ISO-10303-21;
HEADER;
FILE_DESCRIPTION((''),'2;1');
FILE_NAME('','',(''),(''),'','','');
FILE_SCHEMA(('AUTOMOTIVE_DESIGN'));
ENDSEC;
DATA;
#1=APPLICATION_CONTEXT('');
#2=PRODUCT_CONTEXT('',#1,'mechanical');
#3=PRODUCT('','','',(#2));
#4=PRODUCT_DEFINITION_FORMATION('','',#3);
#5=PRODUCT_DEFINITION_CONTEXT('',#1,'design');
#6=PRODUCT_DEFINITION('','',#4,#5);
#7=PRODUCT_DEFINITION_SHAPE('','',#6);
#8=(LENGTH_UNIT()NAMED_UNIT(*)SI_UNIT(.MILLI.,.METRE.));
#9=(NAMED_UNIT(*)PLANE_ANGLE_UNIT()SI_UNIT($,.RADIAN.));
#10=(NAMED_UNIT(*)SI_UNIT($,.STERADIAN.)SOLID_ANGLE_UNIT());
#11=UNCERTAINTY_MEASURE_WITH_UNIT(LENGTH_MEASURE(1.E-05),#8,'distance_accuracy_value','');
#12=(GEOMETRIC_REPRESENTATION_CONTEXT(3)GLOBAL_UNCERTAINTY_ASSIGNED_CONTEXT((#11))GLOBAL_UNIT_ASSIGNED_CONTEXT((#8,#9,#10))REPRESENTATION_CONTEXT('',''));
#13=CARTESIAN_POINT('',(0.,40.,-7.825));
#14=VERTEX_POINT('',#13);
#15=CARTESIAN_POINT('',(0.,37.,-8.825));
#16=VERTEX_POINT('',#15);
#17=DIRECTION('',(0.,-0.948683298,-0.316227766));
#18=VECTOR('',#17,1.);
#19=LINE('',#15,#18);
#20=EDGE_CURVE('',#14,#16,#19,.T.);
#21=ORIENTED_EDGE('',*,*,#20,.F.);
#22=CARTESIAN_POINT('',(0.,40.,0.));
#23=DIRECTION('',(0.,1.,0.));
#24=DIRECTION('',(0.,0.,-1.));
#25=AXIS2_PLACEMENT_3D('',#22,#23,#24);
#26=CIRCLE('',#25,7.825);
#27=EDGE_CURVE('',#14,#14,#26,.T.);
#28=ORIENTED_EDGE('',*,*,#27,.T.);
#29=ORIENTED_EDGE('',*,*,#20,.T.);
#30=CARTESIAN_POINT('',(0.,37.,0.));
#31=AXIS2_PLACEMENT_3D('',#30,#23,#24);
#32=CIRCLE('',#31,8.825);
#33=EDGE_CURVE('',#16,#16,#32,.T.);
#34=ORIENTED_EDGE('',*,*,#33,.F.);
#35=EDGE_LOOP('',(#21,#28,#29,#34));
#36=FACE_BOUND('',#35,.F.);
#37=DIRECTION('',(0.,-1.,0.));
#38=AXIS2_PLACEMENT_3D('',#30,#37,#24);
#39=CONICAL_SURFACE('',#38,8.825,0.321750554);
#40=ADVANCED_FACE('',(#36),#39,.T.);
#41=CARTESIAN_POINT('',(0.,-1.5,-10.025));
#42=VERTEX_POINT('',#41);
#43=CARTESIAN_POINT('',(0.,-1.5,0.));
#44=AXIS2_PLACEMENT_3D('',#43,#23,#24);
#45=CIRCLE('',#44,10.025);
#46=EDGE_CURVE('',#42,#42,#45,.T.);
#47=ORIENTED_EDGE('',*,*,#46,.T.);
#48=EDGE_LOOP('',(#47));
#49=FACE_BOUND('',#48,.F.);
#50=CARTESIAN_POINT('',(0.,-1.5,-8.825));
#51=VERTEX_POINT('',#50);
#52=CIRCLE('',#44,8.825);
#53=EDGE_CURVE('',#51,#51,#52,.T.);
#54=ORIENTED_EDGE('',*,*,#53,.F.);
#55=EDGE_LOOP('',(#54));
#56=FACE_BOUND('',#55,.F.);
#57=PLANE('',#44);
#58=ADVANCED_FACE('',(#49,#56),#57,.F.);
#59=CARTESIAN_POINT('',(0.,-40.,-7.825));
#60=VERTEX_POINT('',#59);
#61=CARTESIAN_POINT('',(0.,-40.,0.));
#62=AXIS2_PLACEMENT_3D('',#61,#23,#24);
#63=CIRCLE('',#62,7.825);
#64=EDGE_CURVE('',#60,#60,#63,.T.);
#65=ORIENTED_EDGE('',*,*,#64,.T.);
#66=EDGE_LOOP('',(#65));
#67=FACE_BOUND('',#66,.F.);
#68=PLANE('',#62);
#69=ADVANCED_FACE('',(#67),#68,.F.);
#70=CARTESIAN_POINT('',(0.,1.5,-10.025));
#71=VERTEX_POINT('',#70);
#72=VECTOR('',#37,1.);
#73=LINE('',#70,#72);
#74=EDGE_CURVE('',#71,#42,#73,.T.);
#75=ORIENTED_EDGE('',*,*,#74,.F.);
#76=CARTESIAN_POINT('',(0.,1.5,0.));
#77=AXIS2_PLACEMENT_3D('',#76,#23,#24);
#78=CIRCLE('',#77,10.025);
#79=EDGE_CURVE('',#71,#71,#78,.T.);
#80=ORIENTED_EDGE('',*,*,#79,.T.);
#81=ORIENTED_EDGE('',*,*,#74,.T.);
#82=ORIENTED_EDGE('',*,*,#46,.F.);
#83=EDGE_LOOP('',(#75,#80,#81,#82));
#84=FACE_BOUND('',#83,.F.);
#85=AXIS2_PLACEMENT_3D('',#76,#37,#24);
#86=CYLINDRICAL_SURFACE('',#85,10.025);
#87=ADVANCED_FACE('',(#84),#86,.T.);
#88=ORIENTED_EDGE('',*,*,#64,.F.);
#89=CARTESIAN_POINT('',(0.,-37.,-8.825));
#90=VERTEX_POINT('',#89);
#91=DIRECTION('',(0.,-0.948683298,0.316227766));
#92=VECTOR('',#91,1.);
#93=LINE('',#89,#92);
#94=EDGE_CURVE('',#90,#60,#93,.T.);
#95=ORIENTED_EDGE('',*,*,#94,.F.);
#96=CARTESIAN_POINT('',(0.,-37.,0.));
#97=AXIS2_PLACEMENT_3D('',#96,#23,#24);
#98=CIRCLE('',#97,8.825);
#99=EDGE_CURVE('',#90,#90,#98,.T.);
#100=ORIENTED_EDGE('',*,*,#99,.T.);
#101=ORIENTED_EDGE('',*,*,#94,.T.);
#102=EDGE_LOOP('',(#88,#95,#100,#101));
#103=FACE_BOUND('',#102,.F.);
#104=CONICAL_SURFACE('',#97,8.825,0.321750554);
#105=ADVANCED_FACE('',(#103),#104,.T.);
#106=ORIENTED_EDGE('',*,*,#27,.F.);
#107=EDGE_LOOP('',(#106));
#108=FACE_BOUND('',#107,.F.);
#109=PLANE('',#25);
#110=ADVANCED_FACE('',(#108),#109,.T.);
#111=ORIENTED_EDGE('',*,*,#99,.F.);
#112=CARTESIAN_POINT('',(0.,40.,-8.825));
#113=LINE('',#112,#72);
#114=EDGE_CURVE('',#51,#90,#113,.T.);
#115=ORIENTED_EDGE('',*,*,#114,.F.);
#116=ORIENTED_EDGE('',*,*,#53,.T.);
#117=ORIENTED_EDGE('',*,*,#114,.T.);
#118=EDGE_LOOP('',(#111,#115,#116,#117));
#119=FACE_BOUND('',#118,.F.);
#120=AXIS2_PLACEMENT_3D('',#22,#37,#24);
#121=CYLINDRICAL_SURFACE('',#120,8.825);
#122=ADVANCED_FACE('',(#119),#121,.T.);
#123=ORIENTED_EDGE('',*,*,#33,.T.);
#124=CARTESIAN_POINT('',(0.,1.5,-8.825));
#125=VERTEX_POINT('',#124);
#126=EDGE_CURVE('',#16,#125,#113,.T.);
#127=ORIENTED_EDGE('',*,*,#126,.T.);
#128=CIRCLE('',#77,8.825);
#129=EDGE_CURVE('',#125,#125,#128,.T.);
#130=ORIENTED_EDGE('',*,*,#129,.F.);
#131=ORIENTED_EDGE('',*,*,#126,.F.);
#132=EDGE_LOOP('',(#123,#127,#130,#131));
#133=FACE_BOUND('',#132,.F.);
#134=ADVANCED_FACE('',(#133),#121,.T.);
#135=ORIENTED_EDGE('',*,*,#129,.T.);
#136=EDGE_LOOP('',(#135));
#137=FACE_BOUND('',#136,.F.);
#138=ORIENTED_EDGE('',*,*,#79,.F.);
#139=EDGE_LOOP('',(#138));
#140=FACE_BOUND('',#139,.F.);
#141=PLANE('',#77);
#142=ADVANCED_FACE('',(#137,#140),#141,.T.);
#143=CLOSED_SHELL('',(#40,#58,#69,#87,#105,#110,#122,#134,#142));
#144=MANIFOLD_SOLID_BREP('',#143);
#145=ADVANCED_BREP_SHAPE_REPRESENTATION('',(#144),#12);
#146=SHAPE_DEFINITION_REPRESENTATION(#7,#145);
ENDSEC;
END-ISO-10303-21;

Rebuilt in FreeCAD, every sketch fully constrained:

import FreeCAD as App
import Part
import Sketcher
from FreeCAD import Vector
Q = App.Units.Quantity


def edges_at(feature, points):
    """Names of the edges that pass closest to the given points."""
    edges = feature.Shape.Edges
    near = lambda p: min(range(len(edges)), key=lambda i: edges[i].distToShape(Part.Vertex(*p))[0])
    return sorted({f"Edge{near(p) + 1}" for p in points})


def add_polygon(sketch, points):
    """Adds a closed chain of lines whose ends are joined by coincident constraints."""
    first, n = sketch.GeometryCount, len(points)
    for a, b in zip(points, points[1:] + points[:1]):
        sketch.addGeometry(Part.LineSegment(App.Vector(*a, 0), App.Vector(*b, 0)), False)
    for i in range(n):
        sketch.addConstraint(Sketcher.Constraint("Coincident", first + i, 2, first + (i + 1) % n, 1))

doc = App.newDocument("Part")
params = doc.addObject("Spreadsheet::Sheet", "Params")
for row, (alias, value) in enumerate([
    ("sketch1_width", "3 mm"),
    ("sketch1_height", "1.2 mm"),
    ("revolution_angle", "360 deg"),
    ("chamfer_size", "1 mm"),
    ("chamfer_size2", "3 mm"),
    ("chamfer2_size", "3 mm"),
    ("chamfer2_size2", "1 mm"),
], start=1):
    params.set(f"A{row}", alias)
    params.set(f"B{row}", "=" + value)
    params.setAlias(f"B{row}", alias)

body = doc.addObject("PartDesign::Body", "Body")

# Sketch on YZ plane
sketch1 = body.newObject("Sketcher::SketchObject", "Sketch")
sketch1.AttachmentSupport = (doc.getObject("YZ_Plane"), [""])
sketch1.MapMode = "FlatFace"
add_polygon(sketch1, [(40, 0), (-40, 0), (-40, -8.8), (-1.5, -8.8), (-1.5, -10), (1.5, -10), (1.5, -8.8), (40, -8.8)])  # lines 0-7
sketch1.addConstraint(Sketcher.Constraint("Horizontal", 0))
sketch1.addConstraint(Sketcher.Constraint("Vertical", 1))
sketch1.addConstraint(Sketcher.Constraint("Horizontal", 2))
sketch1.addConstraint(Sketcher.Constraint("Vertical", 3))
sketch1.addConstraint(Sketcher.Constraint("Horizontal", 4))
sketch1.addConstraint(Sketcher.Constraint("Vertical", 5))
sketch1.addConstraint(Sketcher.Constraint("Horizontal", 6))
sketch1.addConstraint(Sketcher.Constraint("Vertical", 7))
sketch1.addConstraint(Sketcher.Constraint("Symmetric", 0, 2, 7, 2, -1, 1))
sketch1.addConstraint(Sketcher.Constraint("Symmetric", 2, 2, 5, 2, -2))
sketch1.addConstraint(Sketcher.Constraint("DistanceX", 4, 1, 4, 2, Q("3 mm")))
sketch1.addConstraint(Sketcher.Constraint("DistanceX", 0, 2, -1, 1, Q("40 mm")))
sketch1.addConstraint(Sketcher.Constraint("DistanceY", 1, 2, 1, 1, Q("8.825 mm")))
sketch1.addConstraint(Sketcher.Constraint("DistanceY", 3, 2, 3, 1, Q("1.2 mm")))
sketch1.setExpression("Constraints[18]", "Params.sketch1_width")
sketch1.setExpression("Constraints[21]", "Params.sketch1_height")
revolution = body.newObject("PartDesign::Revolution", "Revolution")
revolution.Profile = sketch1
revolution.ReferenceAxis = (sketch1, ["H_Axis"])
revolution.setExpression("Angle", "Params.revolution_angle")
doc.recompute()

chamfer = body.newObject("PartDesign::Chamfer", "Chamfer")
chamfer.Base = (revolution, edges_at(revolution, [(0, 40, 8.825)]))
chamfer.ChamferType = "Two distances"
chamfer.setExpression("Size", "Params.chamfer_size")
chamfer.setExpression("Size2", "Params.chamfer_size2")
chamfer.FlipDirection = True
doc.recompute()

chamfer2 = body.newObject("PartDesign::Chamfer", "Chamfer001")
chamfer2.Base = (chamfer, edges_at(chamfer, [(0, -40, 8.825)]))
chamfer2.ChamferType = "Two distances"
chamfer2.setExpression("Size", "Params.chamfer2_size")
chamfer2.setExpression("Size2", "Params.chamfer2_size2")

doc.recompute()
